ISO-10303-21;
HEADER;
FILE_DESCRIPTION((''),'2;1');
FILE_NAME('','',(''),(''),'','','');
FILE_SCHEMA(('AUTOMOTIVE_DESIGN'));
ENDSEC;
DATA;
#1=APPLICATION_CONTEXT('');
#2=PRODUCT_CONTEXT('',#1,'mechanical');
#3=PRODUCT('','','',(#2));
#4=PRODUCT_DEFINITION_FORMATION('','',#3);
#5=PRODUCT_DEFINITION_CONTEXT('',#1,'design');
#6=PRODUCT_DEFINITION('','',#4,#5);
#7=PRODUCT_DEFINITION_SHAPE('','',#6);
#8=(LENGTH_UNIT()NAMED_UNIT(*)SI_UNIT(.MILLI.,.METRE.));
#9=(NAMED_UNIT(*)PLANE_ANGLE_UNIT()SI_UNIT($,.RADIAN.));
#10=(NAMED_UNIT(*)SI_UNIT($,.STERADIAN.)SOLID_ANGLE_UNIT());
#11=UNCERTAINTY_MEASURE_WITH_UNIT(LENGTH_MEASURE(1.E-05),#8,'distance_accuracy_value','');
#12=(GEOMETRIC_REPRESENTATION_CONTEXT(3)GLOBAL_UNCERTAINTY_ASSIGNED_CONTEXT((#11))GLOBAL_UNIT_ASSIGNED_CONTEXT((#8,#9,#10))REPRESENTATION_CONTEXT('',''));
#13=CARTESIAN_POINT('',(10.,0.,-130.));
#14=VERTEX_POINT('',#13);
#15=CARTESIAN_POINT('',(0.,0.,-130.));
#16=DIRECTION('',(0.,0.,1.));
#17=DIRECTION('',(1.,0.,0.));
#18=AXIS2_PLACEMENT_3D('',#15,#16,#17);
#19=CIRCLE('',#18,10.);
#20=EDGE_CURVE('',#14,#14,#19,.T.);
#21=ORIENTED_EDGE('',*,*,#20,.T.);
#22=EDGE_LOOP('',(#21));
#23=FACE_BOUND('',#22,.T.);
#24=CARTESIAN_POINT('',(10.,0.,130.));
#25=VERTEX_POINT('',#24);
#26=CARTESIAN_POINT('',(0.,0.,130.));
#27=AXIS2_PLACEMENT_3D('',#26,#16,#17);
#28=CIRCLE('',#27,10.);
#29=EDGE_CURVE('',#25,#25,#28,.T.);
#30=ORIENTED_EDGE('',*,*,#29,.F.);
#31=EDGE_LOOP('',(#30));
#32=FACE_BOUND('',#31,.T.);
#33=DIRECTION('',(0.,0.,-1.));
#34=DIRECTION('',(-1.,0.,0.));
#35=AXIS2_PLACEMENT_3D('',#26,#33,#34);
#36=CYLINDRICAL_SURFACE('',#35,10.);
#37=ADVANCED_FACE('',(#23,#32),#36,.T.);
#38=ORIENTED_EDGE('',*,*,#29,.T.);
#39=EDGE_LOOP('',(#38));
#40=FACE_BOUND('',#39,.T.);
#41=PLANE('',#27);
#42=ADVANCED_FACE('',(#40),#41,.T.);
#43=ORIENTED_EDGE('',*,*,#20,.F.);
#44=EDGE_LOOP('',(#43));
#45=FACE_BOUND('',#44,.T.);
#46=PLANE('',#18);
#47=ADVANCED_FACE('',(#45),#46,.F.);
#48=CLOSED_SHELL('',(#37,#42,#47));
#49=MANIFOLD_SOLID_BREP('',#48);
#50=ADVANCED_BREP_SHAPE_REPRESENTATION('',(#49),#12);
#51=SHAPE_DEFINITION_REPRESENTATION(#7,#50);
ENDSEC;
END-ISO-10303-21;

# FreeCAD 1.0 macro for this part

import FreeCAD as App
import Part
import Sketcher
Q = App.Units.Quantity

doc = App.newDocument("Part")
params = doc.addObject("Spreadsheet::Sheet", "Params")
for row, (alias, value) in enumerate([
    ("sketch1_diameter", "20 mm"),
    ("pad1_length", "260 mm"),
], start=1):
    params.set(f"A{row}", alias)
    params.set(f"B{row}", "=" + value)
    params.setAlias(f"B{row}", alias)

body = doc.addObject("PartDesign::Body", "Body")

sketch1 = body.newObject("Sketcher::SketchObject", "Sketch")
sketch1.AttachmentSupport = (doc.getObject("XY_Plane"), [""])
sketch1.MapMode = "FlatFace"
sketch1.addGeometry(Part.Circle(App.Vector(0, 0, 0), App.Vector(0, 0, 1), 10), False)
sketch1.addConstraint([
    Sketcher.Constraint("Coincident", 0, 3, -1, 1),
    Sketcher.Constraint("Diameter", 0, Q("20 mm")),
])
sketch1.setExpression("Constraints[1]", "Params.sketch1_diameter")
pad1 = body.newObject("PartDesign::Pad", "Pad")
pad1.Profile = sketch1
pad1.setExpression("Length", "Params.pad1_length")
pad1.Midplane = True

doc.recompute()
